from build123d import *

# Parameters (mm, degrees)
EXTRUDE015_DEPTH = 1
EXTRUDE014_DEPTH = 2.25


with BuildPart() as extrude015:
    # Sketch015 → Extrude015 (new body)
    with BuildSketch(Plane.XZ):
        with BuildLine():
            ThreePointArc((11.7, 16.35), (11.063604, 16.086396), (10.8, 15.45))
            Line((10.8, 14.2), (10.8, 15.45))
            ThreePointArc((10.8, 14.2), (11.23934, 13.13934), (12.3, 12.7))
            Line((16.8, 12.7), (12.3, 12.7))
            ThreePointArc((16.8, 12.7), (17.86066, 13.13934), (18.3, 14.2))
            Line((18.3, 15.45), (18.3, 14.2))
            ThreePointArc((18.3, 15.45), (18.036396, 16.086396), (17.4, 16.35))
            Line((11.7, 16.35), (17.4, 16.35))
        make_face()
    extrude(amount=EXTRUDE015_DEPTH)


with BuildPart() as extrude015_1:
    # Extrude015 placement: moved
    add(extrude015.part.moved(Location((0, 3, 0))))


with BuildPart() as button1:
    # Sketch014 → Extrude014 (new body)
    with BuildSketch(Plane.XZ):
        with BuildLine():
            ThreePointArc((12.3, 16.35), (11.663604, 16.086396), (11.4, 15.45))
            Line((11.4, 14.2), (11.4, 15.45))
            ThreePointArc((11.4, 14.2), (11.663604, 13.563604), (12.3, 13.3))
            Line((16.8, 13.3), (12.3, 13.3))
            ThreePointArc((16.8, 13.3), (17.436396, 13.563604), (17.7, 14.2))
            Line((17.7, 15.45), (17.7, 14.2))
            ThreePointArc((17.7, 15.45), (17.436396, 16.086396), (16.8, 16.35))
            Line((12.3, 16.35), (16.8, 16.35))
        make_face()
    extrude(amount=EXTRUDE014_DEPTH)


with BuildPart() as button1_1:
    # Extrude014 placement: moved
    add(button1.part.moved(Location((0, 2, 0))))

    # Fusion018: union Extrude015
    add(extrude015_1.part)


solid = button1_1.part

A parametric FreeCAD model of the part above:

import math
import FreeCAD as App
import Part
import Sketcher

V = App.Vector

doc = App.newDocument("Part")
body = doc.addObject("PartDesign::Body", "Body")

# Sketch on XZ plane
sketch1 = body.newObject("Sketcher::SketchObject", "Sketch")
sketch1.AttachmentSupport = (doc.getObject("XZ_Plane"), [""])
sketch1.MapMode = "FlatFace"
sketch1.addGeometry([
    Part.ArcOfCircle(Part.Circle(V(11.7, 15.4, 0), V(0, 0, 1), 0.9), math.radians(90), math.radians(180)),  # 0
    Part.LineSegment(V(10.8, 15.4, 0), V(10.8, 14.2, 0)),  # 1
    Part.ArcOfCircle(Part.Circle(V(12.3, 14.2, 0), V(0, 0, 1), 1.5), math.radians(-180), math.radians(-90)),  # 2
    Part.LineSegment(V(12.3, 12.7, 0), V(16.8, 12.7, 0)),  # 3
    Part.ArcOfCircle(Part.Circle(V(16.8, 14.2, 0), V(0, 0, 1), 1.5), math.radians(-90), math.radians(0)),  # 4
    Part.LineSegment(V(18.3, 14.2, 0), V(18.3, 15.4, 0)),  # 5
    Part.ArcOfCircle(Part.Circle(V(17.4, 15.4, 0), V(0, 0, 1), 0.9), math.radians(0), math.radians(90)),  # 6
    Part.LineSegment(V(17.4, 16.4, 0), V(11.7, 16.4, 0)),  # 7
], False)
sketch1.addConstraint([
    Sketcher.Constraint("Tangent", 0, 2, 1, 1),
    Sketcher.Constraint("Tangent", 1, 2, 2, 1),
    Sketcher.Constraint("Tangent", 2, 2, 3, 1),
    Sketcher.Constraint("Tangent", 3, 2, 4, 1),
    Sketcher.Constraint("Tangent", 4, 2, 5, 1),
    Sketcher.Constraint("Tangent", 5, 2, 6, 1),
    Sketcher.Constraint("Tangent", 6, 2, 7, 1),
    Sketcher.Constraint("Tangent", 7, 2, 0, 1),
    Sketcher.Constraint("Vertical", 1),
    Sketcher.Constraint("Horizontal", 3),
    Sketcher.Constraint("Vertical", 5),
    Sketcher.Constraint("Horizontal", 7),
    Sketcher.Constraint("Equal", 2, 4),
    Sketcher.Constraint("Equal", 0, 6),
    Sketcher.Constraint("Radius", 0, 0.9),
    Sketcher.Constraint("Radius", 2, 1.500001),
    Sketcher.Constraint("DistanceX", 3, 1, 3, 2, 4.5),
    Sketcher.Constraint("DistanceY", 1, 2, 1, 1, 1.25),
    Sketcher.Constraint("DistanceX", -1, 1, 0, 3, 11.7),
    Sketcher.Constraint("DistanceY", -1, 1, 2, 3, 14.200001),
])
pad1 = body.newObject("PartDesign::Pad", "Pad")
pad1.Profile = sketch1
pad1.Length = 1
body2 = doc.addObject("PartDesign::Body", "Body001")
doc.recompute()

body.Placement = App.Placement(V(0, 3, 0), App.Rotation(V(0, 0, 1), 0))
boolean = body2.newObject("PartDesign::Boolean", "Boolean")
boolean.Type = "Fuse"
boolean.addObjects([body])
body3 = doc.addObject("PartDesign::Body", "Body002")

# Sketch on XZ plane
sketch2 = body3.newObject("Sketcher::SketchObject", "Sketch001")
sketch2.AttachmentSupport = (doc.getObject("XZ_Plane002"), [""])
sketch2.MapMode = "FlatFace"
sketch2.addGeometry([
    Part.ArcOfCircle(Part.Circle(V(12.3, 15.4, 0), V(0, 0, 1), 0.9), math.radians(90), math.radians(180)),  # 0
    Part.LineSegment(V(11.4, 15.4, 0), V(11.4, 14.2, 0)),  # 1
    Part.ArcOfCircle(Part.Circle(V(12.3, 14.2, 0), V(0, 0, 1), 0.9), math.radians(-180), math.radians(-90)),  # 2
    Part.LineSegment(V(12.3, 13.3, 0), V(16.8, 13.3, 0)),  # 3
    Part.ArcOfCircle(Part.Circle(V(16.8, 14.2, 0), V(0, 0, 1), 0.9), math.radians(-90), math.radians(0)),  # 4
    Part.LineSegment(V(17.7, 14.2, 0), V(17.7, 15.4, 0)),  # 5
    Part.ArcOfCircle(Part.Circle(V(16.8, 15.4, 0), V(0, 0, 1), 0.9), math.radians(0), math.radians(90)),  # 6
    Part.LineSegment(V(16.8, 16.4, 0), V(12.3, 16.4, 0)),  # 7
], False)
sketch2.addConstraint([
    Sketcher.Constraint("Tangent", 0, 2, 1, 1),
    Sketcher.Constraint("Tangent", 1, 2, 2, 1),
    Sketcher.Constraint("Tangent", 2, 2, 3, 1),
    Sketcher.Constraint("Tangent", 3, 2, 4, 1),
    Sketcher.Constraint("Tangent", 4, 2, 5, 1),
    Sketcher.Constraint("Tangent", 5, 2, 6, 1),
    Sketcher.Constraint("Tangent", 6, 2, 7, 1),
    Sketcher.Constraint("Tangent", 7, 2, 0, 1),
    Sketcher.Constraint("Vertical", 1),
    Sketcher.Constraint("Horizontal", 3),
    Sketcher.Constraint("Vertical", 5),
    Sketcher.Constraint("Horizontal", 7),
    Sketcher.Constraint("Equal", 0, 2),
    Sketcher.Constraint("Equal", 2, 4),
    Sketcher.Constraint("Equal", 4, 6),
    Sketcher.Constraint("Radius", 0, 0.9),
    Sketcher.Constraint("DistanceX", 3, 1, 3, 2, 4.5),
    Sketcher.Constraint("DistanceY", 1, 2, 1, 1, 1.25),
    Sketcher.Constraint("DistanceX", -1, 1, 0, 3, 12.3),
    Sketcher.Constraint("DistanceY", -1, 1, 2, 3, 14.2),
])
pad2 = body3.newObject("PartDesign::Pad", "Pad001")
pad2.Profile = sketch2
pad2.Length = 2.25
body4 = doc.addObject("PartDesign::Body", "Body003")
doc.recompute()

body3.Placement = App.Placement(V(0, 2, 0), App.Rotation(V(0, 0, 1), 0))
boolean2 = body4.newObject("PartDesign::Boolean", "Boolean001")
boolean2.Type = "Fuse"
boolean2.addObjects([body3])
doc.recompute()

boolean3 = body4.newObject("PartDesign::Boolean", "Boolean002")
boolean3.Type = "Fuse"
boolean3.addObjects([body2])

doc.recompute()
